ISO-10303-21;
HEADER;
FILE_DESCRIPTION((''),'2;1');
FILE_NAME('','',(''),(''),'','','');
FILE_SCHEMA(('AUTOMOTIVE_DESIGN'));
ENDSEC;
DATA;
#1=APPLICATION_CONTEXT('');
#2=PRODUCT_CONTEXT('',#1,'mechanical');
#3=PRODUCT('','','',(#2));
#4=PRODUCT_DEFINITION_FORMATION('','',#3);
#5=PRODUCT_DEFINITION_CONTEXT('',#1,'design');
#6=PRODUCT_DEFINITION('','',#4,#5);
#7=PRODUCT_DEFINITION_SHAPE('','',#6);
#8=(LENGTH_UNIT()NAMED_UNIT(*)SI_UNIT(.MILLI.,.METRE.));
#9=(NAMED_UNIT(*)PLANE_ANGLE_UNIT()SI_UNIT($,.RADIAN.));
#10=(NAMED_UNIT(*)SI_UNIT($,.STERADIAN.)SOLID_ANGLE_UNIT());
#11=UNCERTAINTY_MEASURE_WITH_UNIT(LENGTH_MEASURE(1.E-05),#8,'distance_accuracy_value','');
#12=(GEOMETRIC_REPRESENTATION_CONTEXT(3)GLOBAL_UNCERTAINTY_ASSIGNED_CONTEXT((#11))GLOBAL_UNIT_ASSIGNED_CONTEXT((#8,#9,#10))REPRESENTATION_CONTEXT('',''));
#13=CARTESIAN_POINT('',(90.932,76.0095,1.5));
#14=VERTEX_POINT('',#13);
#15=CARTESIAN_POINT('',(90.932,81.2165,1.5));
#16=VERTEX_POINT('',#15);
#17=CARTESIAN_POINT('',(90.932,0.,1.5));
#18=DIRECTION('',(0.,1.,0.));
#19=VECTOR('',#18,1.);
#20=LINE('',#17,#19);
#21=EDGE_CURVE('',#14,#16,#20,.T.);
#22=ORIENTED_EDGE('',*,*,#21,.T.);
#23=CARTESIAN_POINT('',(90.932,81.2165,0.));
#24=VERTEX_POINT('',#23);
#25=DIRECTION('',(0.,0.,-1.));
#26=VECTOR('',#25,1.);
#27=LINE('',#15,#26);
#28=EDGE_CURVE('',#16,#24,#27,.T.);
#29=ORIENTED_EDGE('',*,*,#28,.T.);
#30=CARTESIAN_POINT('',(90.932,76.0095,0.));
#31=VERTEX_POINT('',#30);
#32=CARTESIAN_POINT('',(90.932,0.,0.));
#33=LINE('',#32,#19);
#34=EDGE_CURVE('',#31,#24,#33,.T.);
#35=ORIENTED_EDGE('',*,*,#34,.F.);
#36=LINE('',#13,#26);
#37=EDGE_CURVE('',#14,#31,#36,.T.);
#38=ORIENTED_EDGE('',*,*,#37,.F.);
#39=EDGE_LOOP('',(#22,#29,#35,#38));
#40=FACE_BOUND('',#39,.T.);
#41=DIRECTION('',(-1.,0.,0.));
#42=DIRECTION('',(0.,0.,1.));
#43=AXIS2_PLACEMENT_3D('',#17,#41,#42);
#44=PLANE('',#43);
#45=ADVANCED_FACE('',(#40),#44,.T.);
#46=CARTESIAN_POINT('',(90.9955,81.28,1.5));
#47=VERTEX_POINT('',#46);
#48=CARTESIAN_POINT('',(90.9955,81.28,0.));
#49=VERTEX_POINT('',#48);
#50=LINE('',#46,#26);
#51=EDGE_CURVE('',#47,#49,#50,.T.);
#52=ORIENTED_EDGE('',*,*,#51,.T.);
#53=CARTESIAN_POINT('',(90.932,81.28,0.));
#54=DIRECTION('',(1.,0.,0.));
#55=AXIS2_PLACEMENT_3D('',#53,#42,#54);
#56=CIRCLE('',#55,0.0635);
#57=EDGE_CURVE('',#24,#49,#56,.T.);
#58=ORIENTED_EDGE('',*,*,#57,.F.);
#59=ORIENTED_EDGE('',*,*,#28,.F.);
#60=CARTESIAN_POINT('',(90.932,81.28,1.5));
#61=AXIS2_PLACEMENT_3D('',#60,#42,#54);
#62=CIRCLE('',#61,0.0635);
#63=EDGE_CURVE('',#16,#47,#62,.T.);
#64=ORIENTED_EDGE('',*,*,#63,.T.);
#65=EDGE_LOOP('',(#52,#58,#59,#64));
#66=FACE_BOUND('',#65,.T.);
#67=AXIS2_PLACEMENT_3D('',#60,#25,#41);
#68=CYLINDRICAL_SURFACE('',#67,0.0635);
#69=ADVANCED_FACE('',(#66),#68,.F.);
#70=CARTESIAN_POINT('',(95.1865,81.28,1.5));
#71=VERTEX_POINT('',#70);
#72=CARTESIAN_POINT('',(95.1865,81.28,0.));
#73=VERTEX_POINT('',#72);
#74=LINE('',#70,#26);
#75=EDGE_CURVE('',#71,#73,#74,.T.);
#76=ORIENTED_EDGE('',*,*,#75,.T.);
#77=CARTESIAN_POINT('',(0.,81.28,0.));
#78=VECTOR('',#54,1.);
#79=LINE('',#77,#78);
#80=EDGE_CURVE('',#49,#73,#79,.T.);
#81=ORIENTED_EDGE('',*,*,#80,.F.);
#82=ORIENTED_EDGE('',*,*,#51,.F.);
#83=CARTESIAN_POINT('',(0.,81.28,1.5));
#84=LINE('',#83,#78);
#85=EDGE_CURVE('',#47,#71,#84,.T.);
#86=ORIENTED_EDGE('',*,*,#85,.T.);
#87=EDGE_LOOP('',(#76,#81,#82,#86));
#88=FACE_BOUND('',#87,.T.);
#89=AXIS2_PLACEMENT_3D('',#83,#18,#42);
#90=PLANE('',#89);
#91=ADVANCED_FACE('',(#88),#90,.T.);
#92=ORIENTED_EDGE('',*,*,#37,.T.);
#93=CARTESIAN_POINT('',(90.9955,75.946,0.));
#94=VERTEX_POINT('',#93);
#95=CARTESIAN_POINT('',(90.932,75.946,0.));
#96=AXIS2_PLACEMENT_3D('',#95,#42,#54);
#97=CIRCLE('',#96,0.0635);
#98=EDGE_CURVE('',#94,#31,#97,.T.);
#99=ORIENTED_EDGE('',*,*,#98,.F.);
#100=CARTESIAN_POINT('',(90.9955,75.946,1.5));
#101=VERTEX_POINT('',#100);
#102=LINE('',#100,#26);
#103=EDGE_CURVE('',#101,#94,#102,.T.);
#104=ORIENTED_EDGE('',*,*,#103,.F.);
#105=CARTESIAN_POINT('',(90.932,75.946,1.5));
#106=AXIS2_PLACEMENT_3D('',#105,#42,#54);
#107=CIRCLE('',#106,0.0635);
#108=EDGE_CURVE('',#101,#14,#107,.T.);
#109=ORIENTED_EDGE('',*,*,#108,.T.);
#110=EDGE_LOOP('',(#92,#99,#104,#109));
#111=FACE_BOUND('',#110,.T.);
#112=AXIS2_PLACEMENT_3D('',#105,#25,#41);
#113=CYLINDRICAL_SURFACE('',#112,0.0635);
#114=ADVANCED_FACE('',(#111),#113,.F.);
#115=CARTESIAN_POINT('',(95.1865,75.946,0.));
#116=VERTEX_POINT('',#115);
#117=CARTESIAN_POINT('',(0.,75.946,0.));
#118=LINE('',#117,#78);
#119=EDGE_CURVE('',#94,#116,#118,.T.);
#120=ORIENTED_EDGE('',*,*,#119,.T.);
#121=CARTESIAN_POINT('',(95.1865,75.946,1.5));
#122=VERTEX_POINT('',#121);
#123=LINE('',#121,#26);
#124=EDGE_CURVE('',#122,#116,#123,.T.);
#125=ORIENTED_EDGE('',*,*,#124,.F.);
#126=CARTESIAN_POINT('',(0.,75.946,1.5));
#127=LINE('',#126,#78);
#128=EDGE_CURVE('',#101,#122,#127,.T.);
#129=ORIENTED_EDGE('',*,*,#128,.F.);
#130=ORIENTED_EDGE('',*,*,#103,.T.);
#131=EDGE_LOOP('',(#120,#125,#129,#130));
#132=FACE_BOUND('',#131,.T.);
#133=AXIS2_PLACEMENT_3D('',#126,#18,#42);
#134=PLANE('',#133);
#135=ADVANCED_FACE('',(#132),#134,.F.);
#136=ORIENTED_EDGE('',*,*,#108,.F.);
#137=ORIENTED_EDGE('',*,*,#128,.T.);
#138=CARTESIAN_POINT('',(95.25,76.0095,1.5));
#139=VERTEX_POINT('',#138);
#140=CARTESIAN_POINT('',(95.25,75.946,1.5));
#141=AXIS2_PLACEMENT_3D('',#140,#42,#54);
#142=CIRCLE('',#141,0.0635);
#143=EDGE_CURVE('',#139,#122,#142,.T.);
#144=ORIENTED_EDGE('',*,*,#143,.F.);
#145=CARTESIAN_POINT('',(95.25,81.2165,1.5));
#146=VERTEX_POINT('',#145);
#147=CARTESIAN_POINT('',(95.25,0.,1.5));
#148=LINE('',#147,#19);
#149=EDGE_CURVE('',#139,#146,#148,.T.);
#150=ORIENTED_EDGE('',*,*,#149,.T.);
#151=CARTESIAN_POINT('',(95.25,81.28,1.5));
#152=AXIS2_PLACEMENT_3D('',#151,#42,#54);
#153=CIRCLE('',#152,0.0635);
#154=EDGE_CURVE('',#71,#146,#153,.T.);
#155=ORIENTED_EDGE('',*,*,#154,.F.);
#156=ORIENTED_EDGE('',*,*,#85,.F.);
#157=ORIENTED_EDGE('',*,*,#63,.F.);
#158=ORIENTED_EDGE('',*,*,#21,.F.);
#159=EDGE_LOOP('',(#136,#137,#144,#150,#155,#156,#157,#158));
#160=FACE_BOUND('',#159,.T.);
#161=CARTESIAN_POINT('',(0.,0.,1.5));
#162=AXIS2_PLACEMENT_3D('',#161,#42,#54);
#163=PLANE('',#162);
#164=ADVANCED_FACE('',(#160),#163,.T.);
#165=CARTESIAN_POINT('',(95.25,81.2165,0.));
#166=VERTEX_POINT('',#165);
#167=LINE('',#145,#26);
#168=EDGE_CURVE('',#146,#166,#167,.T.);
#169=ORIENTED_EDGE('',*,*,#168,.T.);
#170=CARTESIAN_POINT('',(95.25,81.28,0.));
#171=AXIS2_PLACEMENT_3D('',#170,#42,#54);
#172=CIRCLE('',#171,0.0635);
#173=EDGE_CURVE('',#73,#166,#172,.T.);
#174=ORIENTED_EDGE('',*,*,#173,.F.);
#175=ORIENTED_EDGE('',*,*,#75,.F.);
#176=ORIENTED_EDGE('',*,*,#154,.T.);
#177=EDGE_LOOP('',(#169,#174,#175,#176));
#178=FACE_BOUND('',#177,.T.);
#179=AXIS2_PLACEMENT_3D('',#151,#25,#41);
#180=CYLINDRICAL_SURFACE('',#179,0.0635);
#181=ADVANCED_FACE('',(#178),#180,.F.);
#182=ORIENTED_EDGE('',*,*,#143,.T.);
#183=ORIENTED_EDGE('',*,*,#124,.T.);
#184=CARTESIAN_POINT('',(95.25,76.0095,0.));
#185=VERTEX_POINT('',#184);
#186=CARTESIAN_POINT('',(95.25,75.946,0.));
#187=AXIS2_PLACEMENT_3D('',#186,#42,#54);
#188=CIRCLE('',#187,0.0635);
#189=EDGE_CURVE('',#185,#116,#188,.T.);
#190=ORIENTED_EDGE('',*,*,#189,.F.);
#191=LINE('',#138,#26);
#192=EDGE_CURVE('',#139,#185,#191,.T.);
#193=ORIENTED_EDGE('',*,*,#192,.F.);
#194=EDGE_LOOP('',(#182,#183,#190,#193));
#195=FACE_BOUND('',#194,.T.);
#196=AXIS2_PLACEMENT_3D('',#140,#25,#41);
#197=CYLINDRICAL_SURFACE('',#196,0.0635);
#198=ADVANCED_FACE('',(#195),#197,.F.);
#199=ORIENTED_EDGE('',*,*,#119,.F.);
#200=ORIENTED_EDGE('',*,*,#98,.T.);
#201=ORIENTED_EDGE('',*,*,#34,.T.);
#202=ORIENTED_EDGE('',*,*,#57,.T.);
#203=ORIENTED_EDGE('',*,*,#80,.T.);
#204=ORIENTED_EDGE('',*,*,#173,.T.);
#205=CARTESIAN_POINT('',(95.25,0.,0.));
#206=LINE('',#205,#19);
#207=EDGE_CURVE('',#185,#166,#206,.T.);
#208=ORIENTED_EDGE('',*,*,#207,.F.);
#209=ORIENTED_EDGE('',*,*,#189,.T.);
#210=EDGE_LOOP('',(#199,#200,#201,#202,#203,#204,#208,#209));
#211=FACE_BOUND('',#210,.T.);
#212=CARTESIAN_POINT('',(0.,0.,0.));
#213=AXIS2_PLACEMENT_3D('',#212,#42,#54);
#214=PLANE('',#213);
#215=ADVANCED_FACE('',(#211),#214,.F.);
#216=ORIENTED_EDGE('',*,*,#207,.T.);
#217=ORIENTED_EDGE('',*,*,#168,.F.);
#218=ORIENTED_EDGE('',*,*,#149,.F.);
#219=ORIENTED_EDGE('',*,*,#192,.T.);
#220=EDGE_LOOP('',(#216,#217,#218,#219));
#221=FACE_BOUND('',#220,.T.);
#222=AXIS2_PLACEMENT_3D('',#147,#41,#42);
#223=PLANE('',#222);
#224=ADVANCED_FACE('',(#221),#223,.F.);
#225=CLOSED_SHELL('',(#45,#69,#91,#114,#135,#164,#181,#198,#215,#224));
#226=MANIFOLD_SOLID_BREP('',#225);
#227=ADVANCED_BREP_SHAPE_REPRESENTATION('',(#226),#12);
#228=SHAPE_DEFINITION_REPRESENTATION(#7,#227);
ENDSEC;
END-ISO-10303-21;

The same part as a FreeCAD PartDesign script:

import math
import FreeCAD as App
import Part
import Sketcher
Q = App.Units.Quantity

doc = App.newDocument("Part")
params = doc.addObject("Spreadsheet::Sheet", "Params")
for row, (alias, value) in enumerate([
    ("sketch1_width", "0.165 in"),
    ("sketch1_height", "0.205 in"),
    ("pad1_length", "1.5 mm"),
], start=1):
    params.set(f"A{row}", alias)
    params.set(f"B{row}", "=" + value)
    params.setAlias(f"B{row}", alias)

body = doc.addObject("PartDesign::Body", "Body")

# Sketch on XY plane
sketch1 = doc.addObject("Sketcher::SketchObject", "Sketch")
body.addObject(sketch1)
sketch1.AttachmentSupport = (doc.XY_Plane, [""])
sketch1.MapMode = "FlatFace"
sketch1.addGeometry([
    Part.LineSegment(App.Vector(90.932, 81.2165, 0), App.Vector(90.932, 76.0095, 0)),  # 0
    Part.ArcOfCircle(Part.Circle(App.Vector(90.932, 75.946, 0), App.Vector(0, 0, 1), 0.0635), math.radians(-0.000001), math.radians(90.000001)),  # 1
    Part.LineSegment(App.Vector(90.9955, 75.946, 0), App.Vector(95.1865, 75.946, 0)),  # 2
    Part.ArcOfCircle(Part.Circle(App.Vector(95.25, 75.946, 0), App.Vector(0, 0, 1), 0.0635), math.radians(89.999999), math.radians(180.000001)),  # 3
    Part.LineSegment(App.Vector(95.25, 76.0095, 0), App.Vector(95.25, 81.2165, 0)),  # 4
    Part.ArcOfCircle(Part.Circle(App.Vector(95.25, 81.28, 0), App.Vector(0, 0, 1), 0.0635), math.radians(179.999999), math.radians(270.000001)),  # 5
    Part.LineSegment(App.Vector(95.1865, 81.28, 0), App.Vector(90.9955, 81.28, 0)),  # 6
    Part.ArcOfCircle(Part.Circle(App.Vector(90.932, 81.28, 0), App.Vector(0, 0, 1), 0.0635), math.radians(-90.000001), math.radians(0.000001)),  # 7
], False)
sketch1.addConstraint([
    Sketcher.Constraint("Coincident", 0, 2, 1, 2),
    Sketcher.Constraint("Coincident", 1, 1, 2, 1),
    Sketcher.Constraint("Coincident", 2, 2, 3, 2),
    Sketcher.Constraint("Coincident", 3, 1, 4, 1),
    Sketcher.Constraint("Coincident", 4, 2, 5, 2),
    Sketcher.Constraint("Coincident", 5, 1, 6, 1),
    Sketcher.Constraint("Coincident", 6, 2, 7, 2),
    Sketcher.Constraint("Coincident", 7, 1, 0, 1),
    Sketcher.Constraint("Vertical", 0),
    Sketcher.Constraint("Horizontal", 2),
    Sketcher.Constraint("Vertical", 4),
    Sketcher.Constraint("Horizontal", 6),
    Sketcher.Constraint("Equal", 1, 3),
    Sketcher.Constraint("Equal", 3, 5),
    Sketcher.Constraint("Equal", 5, 7),
    Sketcher.Constraint("Horizontal", 1, 3, 3, 3),
    Sketcher.Constraint("Horizontal", 5, 3, 7, 3),
    Sketcher.Constraint("Horizontal", 3, 3, 1, 1),
    Sketcher.Constraint("Horizontal", 7, 3, 5, 1),
    Sketcher.Constraint("Vertical", 3, 3, 5, 3),
    Sketcher.Constraint("Vertical", 1, 3, 7, 3),
    Sketcher.Constraint("Vertical", 7, 3, 0, 2),
    Sketcher.Constraint("Vertical", 5, 3, 3, 1),
    Sketcher.Constraint("DistanceY", -1, 1, 5, 3, Q("3.2 in")),
    Sketcher.Constraint("Radius", 1, Q("0.0025 in")),
    Sketcher.Constraint("DistanceX", 2, 1, 2, 2, Q("0.165 in")),
    Sketcher.Constraint("DistanceY", 0, 2, 0, 1, Q("0.205 in")),
    Sketcher.Constraint("DistanceX", -1, 1, 1, 3, Q("3.58 in")),
])
sketch1.setExpression("Constraints[25]", "Params.sketch1_width")
sketch1.setExpression("Constraints[26]", "Params.sketch1_height")
pad1 = doc.addObject("PartDesign::Pad", "Pad")
body.addObject(pad1)
pad1.Profile = sketch1
pad1.setExpression("Length", "Params.pad1_length")

doc.recompute()
